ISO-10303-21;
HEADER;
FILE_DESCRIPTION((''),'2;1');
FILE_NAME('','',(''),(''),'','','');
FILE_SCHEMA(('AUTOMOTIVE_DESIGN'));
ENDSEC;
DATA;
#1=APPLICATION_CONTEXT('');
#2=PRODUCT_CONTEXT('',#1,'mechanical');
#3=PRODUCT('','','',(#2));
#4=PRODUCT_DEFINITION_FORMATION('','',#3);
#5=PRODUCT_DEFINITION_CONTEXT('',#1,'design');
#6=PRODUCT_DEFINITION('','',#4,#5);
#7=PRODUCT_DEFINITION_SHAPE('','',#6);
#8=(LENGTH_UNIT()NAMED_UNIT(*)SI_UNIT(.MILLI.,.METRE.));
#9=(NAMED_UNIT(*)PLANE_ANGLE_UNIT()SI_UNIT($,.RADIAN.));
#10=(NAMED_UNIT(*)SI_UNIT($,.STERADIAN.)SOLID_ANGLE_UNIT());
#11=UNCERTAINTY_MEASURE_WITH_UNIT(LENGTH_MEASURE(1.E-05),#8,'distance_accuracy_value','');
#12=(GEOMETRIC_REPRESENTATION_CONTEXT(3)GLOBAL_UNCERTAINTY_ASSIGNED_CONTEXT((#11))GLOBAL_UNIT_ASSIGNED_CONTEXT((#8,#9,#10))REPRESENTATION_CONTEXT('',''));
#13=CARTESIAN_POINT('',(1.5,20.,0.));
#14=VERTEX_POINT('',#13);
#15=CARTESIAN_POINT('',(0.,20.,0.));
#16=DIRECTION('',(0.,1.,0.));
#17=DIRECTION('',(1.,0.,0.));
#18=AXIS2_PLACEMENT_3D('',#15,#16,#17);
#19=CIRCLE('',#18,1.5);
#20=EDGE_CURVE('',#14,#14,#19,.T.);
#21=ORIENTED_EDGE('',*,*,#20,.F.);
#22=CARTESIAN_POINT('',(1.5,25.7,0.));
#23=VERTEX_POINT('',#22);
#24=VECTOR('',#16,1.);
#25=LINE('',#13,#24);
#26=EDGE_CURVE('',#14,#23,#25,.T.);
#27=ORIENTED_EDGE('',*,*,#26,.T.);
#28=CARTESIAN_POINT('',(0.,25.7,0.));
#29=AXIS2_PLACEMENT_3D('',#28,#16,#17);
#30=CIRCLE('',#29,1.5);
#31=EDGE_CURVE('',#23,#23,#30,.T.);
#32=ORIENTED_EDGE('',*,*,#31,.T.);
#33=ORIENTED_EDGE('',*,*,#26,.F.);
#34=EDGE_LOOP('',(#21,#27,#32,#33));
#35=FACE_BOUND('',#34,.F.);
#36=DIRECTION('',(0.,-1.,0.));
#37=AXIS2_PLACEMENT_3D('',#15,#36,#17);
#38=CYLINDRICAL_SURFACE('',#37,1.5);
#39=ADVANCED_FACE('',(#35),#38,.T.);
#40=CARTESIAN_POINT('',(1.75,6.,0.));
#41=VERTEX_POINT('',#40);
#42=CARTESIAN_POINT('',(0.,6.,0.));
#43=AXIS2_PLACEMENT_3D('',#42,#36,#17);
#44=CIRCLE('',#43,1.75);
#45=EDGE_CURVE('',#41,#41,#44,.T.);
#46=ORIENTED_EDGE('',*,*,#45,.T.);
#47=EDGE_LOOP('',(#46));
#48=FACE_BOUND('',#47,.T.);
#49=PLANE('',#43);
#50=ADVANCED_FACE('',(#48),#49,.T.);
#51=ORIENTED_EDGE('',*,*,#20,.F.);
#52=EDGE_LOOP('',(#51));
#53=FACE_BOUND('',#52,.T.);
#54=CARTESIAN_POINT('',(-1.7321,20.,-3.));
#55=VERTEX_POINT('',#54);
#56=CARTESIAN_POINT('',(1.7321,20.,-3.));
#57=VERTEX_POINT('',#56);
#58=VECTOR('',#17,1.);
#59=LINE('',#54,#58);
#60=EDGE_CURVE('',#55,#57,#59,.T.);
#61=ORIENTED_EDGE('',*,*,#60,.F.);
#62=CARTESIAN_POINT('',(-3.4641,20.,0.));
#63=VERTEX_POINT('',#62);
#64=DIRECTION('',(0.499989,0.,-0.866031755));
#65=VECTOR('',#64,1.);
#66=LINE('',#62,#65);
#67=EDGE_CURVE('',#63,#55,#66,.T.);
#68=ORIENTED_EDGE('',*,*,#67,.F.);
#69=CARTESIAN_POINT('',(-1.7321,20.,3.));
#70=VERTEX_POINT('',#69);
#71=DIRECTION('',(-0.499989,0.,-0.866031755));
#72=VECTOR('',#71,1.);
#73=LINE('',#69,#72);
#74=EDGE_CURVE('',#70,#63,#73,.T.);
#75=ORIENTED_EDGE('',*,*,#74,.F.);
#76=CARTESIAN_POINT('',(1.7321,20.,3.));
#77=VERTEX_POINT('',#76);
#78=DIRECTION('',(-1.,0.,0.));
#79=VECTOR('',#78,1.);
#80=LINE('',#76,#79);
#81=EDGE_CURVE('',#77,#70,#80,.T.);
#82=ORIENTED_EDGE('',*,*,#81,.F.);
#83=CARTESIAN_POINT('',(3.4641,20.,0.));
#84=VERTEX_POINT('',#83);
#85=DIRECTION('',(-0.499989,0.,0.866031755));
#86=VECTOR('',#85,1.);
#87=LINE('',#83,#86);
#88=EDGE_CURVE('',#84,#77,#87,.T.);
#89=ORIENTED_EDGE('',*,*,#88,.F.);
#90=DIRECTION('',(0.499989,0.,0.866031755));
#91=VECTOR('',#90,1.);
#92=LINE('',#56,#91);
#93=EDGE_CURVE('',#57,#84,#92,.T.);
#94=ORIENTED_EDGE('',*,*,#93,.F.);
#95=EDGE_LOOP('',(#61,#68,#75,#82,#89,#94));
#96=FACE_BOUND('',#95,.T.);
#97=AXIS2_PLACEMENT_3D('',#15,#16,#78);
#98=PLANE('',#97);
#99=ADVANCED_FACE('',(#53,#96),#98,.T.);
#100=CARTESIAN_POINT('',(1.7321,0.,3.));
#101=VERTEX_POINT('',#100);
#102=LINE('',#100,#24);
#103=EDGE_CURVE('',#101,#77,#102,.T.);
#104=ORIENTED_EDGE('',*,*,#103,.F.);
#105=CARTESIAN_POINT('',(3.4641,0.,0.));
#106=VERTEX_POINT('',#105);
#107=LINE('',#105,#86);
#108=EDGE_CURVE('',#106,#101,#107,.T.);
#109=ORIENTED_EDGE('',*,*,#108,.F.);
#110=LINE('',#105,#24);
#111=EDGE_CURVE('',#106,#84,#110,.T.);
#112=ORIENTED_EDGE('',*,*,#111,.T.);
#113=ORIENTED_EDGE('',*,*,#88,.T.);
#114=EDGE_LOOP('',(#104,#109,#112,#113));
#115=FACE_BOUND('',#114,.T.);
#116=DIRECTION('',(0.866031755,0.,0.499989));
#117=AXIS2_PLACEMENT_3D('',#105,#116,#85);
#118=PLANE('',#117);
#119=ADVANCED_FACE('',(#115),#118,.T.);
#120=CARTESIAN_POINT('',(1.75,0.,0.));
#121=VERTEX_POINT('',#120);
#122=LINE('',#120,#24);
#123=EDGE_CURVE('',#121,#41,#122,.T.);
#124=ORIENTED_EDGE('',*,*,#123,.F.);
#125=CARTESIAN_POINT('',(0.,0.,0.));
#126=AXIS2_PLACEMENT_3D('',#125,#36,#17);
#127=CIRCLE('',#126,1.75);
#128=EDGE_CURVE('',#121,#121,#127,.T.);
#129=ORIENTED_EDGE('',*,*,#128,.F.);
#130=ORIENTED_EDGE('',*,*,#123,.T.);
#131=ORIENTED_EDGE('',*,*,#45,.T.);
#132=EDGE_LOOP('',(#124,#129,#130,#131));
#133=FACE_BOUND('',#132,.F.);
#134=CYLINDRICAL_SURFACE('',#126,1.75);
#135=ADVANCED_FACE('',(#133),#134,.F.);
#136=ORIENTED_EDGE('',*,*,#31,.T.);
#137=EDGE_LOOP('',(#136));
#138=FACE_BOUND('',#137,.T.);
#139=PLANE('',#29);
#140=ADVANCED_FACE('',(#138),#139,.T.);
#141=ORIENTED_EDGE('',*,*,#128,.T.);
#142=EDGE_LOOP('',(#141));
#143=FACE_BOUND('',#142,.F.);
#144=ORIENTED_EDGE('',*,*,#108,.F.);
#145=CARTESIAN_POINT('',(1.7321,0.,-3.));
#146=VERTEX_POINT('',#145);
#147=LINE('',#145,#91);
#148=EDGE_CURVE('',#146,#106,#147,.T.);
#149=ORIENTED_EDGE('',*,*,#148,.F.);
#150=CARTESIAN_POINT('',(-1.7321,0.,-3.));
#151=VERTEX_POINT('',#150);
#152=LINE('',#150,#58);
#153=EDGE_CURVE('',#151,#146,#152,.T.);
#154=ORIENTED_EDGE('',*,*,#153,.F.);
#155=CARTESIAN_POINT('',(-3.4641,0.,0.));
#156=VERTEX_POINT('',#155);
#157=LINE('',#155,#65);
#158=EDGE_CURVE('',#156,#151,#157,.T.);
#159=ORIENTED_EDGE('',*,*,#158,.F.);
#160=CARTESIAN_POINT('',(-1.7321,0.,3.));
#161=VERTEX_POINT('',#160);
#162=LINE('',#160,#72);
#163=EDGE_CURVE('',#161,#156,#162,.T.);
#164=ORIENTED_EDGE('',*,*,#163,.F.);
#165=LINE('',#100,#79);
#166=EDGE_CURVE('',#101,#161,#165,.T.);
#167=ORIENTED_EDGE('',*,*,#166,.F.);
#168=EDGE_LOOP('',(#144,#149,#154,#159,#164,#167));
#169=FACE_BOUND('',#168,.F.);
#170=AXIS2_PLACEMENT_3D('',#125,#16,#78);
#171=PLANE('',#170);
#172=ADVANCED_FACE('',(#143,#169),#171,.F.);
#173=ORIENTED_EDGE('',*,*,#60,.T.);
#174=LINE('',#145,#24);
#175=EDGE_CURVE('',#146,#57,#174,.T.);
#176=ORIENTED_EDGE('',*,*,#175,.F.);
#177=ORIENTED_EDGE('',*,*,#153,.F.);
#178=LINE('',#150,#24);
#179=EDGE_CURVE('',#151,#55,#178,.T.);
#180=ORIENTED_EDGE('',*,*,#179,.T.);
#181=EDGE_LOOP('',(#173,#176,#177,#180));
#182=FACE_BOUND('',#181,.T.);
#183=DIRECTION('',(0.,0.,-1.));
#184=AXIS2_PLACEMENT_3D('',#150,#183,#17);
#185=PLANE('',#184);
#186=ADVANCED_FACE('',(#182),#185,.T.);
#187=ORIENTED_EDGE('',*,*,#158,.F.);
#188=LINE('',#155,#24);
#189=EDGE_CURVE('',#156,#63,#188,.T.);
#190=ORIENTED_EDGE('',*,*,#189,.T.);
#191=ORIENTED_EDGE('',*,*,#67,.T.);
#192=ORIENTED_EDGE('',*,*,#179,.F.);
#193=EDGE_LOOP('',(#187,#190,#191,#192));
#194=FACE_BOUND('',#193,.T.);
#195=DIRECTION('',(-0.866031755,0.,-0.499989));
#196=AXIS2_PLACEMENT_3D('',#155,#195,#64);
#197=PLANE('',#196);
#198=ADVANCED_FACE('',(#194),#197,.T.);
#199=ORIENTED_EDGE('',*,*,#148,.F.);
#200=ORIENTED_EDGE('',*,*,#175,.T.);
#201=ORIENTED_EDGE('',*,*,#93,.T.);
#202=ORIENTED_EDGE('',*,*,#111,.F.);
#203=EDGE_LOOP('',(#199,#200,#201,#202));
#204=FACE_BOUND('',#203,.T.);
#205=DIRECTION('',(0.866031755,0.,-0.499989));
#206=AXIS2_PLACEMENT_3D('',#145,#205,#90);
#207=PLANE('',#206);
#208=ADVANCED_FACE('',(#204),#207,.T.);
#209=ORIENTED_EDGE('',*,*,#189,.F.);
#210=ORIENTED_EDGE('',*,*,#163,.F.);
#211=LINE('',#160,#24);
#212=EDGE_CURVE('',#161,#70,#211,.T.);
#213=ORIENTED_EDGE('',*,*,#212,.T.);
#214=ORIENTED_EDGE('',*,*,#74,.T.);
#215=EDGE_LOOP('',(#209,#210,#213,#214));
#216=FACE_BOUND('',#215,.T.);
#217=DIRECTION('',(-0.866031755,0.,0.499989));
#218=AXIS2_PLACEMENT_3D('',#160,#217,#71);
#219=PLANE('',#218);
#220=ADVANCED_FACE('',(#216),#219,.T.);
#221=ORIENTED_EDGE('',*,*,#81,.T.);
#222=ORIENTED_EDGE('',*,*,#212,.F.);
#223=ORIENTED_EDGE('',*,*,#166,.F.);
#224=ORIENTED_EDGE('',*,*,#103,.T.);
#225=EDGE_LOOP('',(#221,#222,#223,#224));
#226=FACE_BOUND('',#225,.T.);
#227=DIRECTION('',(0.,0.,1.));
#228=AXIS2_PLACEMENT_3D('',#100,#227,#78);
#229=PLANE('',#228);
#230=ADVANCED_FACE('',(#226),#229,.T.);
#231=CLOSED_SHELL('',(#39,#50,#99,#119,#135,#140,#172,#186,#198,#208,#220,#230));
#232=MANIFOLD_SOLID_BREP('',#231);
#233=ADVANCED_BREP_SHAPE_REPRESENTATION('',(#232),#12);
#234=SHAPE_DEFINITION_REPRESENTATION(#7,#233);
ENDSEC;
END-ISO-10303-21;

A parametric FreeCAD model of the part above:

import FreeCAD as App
import Part
import Sketcher

V = App.Vector
Q = App.Units.Quantity

doc = App.newDocument("Part")
body = doc.addObject("PartDesign::Body", "Body")

# Sketch on XZ plane
sketch1 = body.newObject("Sketcher::SketchObject", "Sketch")
sketch1.AttachmentSupport = (doc.getObject("XZ_Plane"), [""])
sketch1.MapMode = "FlatFace"
sketch1.addGeometry(Part.LineSegment(V(1.7, 3, 0), V(3.5, 0, 0)), False)
sketch1.addGeometry(Part.LineSegment(V(3.5, 0, 0), V(1.7, -3, 0)), False)
sketch1.addGeometry(Part.LineSegment(V(1.7, -3, 0), V(-1.7, -3, 0)), False)
sketch1.addGeometry(Part.LineSegment(V(-1.7, -3, 0), V(-3.5, 0, 0)), False)
sketch1.addGeometry(Part.LineSegment(V(-3.5, 0, 0), V(-1.7, 3, 0)), False)
sketch1.addGeometry(Part.LineSegment(V(-1.7, 3, 0), V(1.7, 3, 0)), False)
sketch1.addConstraint(Sketcher.Constraint("Coincident", 0, 2, 1, 1))
sketch1.addConstraint(Sketcher.Constraint("Coincident", 1, 2, 2, 1))
sketch1.addConstraint(Sketcher.Constraint("Coincident", 2, 2, 3, 1))
sketch1.addConstraint(Sketcher.Constraint("Coincident", 3, 2, 4, 1))
sketch1.addConstraint(Sketcher.Constraint("Coincident", 4, 2, 5, 1))
sketch1.addConstraint(Sketcher.Constraint("Coincident", 5, 2, 0, 1))
sketch1.addConstraint(Sketcher.Constraint("Horizontal", 2))
sketch1.addConstraint(Sketcher.Constraint("Horizontal", 5))
sketch1.addConstraint(Sketcher.Constraint("Symmetric", 0, 2, 3, 2, -1, 1))
sketch1.addConstraint(Sketcher.Constraint("Symmetric", 1, 2, 4, 2, -1, 1))
sketch1.addConstraint(Sketcher.Constraint("PointOnObject", 0, 2, -1))
sketch1.addConstraint(Sketcher.Constraint("Parallel", 0, 3))
sketch1.addConstraint(Sketcher.Constraint("Vertical", 2, 2, 4, 2))
sketch1.addConstraint(Sketcher.Constraint("DistanceY", 2, 2, 4, 2, 6.0))
sketch1.addConstraint(Sketcher.Constraint("Angle", 0, Q("-60.0007 deg")))
sketch1.addConstraint(Sketcher.Constraint("DistanceX", 2, 2, 2, 1, 3.4642))
pad1 = body.newObject("PartDesign::Pad", "Pad")
pad1.Profile = sketch1
pad1.Length = 20
pad1.Reversed = True

# Sketch on XZ plane
sketch2 = body.newObject("Sketcher::SketchObject", "Sketch001")
sketch2.AttachmentSupport = (doc.getObject("XZ_Plane"), [""])
sketch2.MapMode = "FlatFace"
sketch2.AttachmentOffset = App.Placement(V(0, 0, -20), App.Rotation())
sketch2.addGeometry(Part.Circle(V(0, 0, 0), V(0, 0, 1), 1.5), False)
sketch2.addConstraint(Sketcher.Constraint("Coincident", 0, 3, -1, 1))
sketch2.addConstraint(Sketcher.Constraint("Diameter", 0, 3.0))
pad2 = body.newObject("PartDesign::Pad", "Pad001")
pad2.Profile = sketch2
pad2.Length = 5.7
pad2.Reversed = True

# Sketch on XZ plane
sketch3 = body.newObject("Sketcher::SketchObject", "Sketch002")
sketch3.AttachmentSupport = (doc.getObject("XZ_Plane"), [""])
sketch3.MapMode = "FlatFace"
sketch3.addGeometry(Part.Circle(V(0, 0, 0), V(0, 0, 1), 1.8), False)
sketch3.addConstraint(Sketcher.Constraint("Coincident", 0, 3, -1, 1))
sketch3.addConstraint(Sketcher.Constraint("Diameter", 0, 3.5))
pocket1 = body.newObject("PartDesign::Pocket", "Pocket")
pocket1.Profile = sketch3
pocket1.Length = 6

doc.recompute()
